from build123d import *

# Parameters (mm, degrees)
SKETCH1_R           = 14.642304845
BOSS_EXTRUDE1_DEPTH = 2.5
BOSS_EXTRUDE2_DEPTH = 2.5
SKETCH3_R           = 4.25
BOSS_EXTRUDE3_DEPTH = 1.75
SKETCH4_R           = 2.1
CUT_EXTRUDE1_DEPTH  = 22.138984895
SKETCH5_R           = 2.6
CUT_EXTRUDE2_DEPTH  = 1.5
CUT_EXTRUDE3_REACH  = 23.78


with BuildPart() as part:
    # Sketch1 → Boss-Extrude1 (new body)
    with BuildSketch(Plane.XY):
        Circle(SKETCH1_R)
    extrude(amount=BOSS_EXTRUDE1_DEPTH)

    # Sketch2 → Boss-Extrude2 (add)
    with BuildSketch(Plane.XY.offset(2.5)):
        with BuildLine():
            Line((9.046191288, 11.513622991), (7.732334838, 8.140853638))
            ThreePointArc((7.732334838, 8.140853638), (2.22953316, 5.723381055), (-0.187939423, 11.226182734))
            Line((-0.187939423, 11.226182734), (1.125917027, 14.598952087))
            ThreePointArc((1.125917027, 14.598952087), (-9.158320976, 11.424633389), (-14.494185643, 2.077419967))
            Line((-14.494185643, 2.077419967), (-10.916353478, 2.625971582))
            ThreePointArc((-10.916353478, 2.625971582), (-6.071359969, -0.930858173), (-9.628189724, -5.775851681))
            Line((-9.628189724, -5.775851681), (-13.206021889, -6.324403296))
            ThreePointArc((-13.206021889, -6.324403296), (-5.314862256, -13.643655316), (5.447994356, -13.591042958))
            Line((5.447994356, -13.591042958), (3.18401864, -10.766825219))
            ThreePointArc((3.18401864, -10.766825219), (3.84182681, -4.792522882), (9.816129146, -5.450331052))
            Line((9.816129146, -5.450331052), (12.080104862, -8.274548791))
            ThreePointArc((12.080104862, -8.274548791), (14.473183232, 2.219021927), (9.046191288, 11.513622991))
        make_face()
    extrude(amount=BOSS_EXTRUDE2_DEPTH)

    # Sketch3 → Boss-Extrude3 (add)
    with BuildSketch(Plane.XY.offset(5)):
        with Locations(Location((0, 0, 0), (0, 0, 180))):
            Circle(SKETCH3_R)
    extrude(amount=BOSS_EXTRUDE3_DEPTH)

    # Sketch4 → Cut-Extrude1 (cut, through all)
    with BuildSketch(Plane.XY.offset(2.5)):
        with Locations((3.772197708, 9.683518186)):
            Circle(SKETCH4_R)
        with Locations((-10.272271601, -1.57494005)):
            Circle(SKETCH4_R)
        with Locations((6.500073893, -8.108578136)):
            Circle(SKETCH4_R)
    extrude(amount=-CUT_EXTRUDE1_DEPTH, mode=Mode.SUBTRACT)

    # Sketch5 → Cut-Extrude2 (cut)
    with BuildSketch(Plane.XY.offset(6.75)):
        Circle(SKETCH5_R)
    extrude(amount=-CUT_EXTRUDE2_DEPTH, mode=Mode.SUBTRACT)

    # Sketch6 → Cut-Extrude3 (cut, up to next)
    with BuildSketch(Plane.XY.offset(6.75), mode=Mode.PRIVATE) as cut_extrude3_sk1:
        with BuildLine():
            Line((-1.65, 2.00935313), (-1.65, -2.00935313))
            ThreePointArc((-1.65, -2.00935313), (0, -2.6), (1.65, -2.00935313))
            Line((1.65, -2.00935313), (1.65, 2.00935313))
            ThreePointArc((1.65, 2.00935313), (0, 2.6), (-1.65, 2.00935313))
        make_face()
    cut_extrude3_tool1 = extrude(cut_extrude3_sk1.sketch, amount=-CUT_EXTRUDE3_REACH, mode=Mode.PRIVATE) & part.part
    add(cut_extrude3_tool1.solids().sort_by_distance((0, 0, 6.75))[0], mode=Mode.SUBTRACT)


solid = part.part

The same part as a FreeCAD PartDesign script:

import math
import FreeCAD as App
import Part
import Sketcher
from FreeCAD import Vector
Q = App.Units.Quantity

doc = App.newDocument("Part")
body = doc.addObject("PartDesign::Body", "Body")

# Sketch on XY plane
sketch1 = body.newObject("Sketcher::SketchObject", "Sketch")
sketch1.AttachmentSupport = (doc.getObject("XY_Plane"), [""])
sketch1.MapMode = "FlatFace"
sketch1.addGeometry(Part.Circle(Vector(0, 0, 0), Vector(0, 0, 1), 14.642305), False)
sketch1.addConstraint(Sketcher.Constraint("Coincident", 0, 3, -1, 1))
sketch1.addConstraint(Sketcher.Constraint("Diameter", 0, Q("29.28461 mm")))
pad1 = body.newObject("PartDesign::Pad", "Pad")
pad1.Profile = sketch1
pad1.Length = 2.5

# Sketch on XY plane
sketch2 = body.newObject("Sketcher::SketchObject", "Sketch001")
sketch2.AttachmentSupport = (doc.getObject("XY_Plane"), [""])
sketch2.MapMode = "FlatFace"
sketch2.AttachmentOffset = App.Placement(Vector(0, 0, 2.5), App.Rotation())
sketch2.addGeometry(Part.LineSegment(Vector(9.046191, 11.513623, 0), Vector(7.732335, 8.140854, 0)), False)
sketch2.addGeometry(Part.ArcOfCircle(Part.Circle(Vector(3.772198, 9.683518, 0), Vector(0, 0, 1), 4.25), math.radians(158.716685), math.radians(338.716685)), False)
sketch2.addGeometry(Part.LineSegment(Vector(-0.187939, 11.226183, 0), Vector(1.125917, 14.598952, 0)), False)
sketch2.addGeometry(Part.ArcOfCircle(Part.Circle(Vector(0, 0, 0), Vector(0, 0, 1), 14.642305), math.radians(85.589899), math.radians(171.843471)), False)
sketch2.addGeometry(Part.LineSegment(Vector(-14.494186, 2.07742, 0), Vector(-10.916353, 2.625972, 0)), False)
sketch2.addGeometry(Part.ArcOfCircle(Part.Circle(Vector(-10.272272, -1.57494, 0), Vector(0, 0, 1), 4.25), math.radians(-81.283315), math.radians(98.716685)), False)
sketch2.addGeometry(Part.LineSegment(Vector(-9.62819, -5.775852, 0), Vector(-13.206022, -6.324403, 0)), False)
sketch2.addGeometry(Part.ArcOfCircle(Part.Circle(Vector(0, 0, 0), Vector(0, 0, 1), 14.642305), math.radians(-154.410101), math.radians(-68.156529)), False)
sketch2.addGeometry(Part.LineSegment(Vector(5.447994, -13.591043, 0), Vector(3.184019, -10.766825, 0)), False)
sketch2.addGeometry(Part.ArcOfCircle(Part.Circle(Vector(6.500074, -8.108578, 0), Vector(0, 0, 1), 4.25), math.radians(38.716685), math.radians(218.716685)), False)
sketch2.addGeometry(Part.LineSegment(Vector(9.816129, -5.450331, 0), Vector(12.080105, -8.274549, 0)), False)
sketch2.addGeometry(Part.ArcOfCircle(Part.Circle(Vector(0, 0, 0), Vector(0, 0, 1), 14.642305), math.radians(-34.410101), math.radians(51.843471)), False)
sketch2.addConstraint(Sketcher.Constraint("Tangent", 0, 2, 1, 2))
sketch2.addConstraint(Sketcher.Constraint("Tangent", 1, 1, 2, 1))
sketch2.addConstraint(Sketcher.Constraint("Coincident", 2, 2, 3, 1))
sketch2.addConstraint(Sketcher.Constraint("Coincident", 3, 2, 4, 1))
sketch2.addConstraint(Sketcher.Constraint("Tangent", 4, 2, 5, 2))
sketch2.addConstraint(Sketcher.Constraint("Tangent", 5, 1, 6, 1))
sketch2.addConstraint(Sketcher.Constraint("Coincident", 6, 2, 7, 1))
sketch2.addConstraint(Sketcher.Constraint("Coincident", 7, 2, 8, 1))
sketch2.addConstraint(Sketcher.Constraint("Tangent", 8, 2, 9, 2))
sketch2.addConstraint(Sketcher.Constraint("Tangent", 9, 1, 10, 1))
sketch2.addConstraint(Sketcher.Constraint("Coincident", 10, 2, 11, 1))
sketch2.addConstraint(Sketcher.Constraint("Coincident", 11, 2, 0, 1))
sketch2.addConstraint(Sketcher.Constraint("Coincident", 3, 3, -1, 1))
sketch2.addConstraint(Sketcher.Constraint("Coincident", 7, 3, -1, 1))
sketch2.addConstraint(Sketcher.Constraint("Coincident", 11, 3, -1, 1))
sketch2.addConstraint(Sketcher.Constraint("Equal", 1, 5))
sketch2.addConstraint(Sketcher.Constraint("Equal", 3, 7))
sketch2.addConstraint(Sketcher.Constraint("Equal", 5, 9))
sketch2.addConstraint(Sketcher.Constraint("Equal", 7, 11))
sketch2.addConstraint(Sketcher.Constraint("Parallel", 0, 2))
sketch2.addConstraint(Sketcher.Constraint("Parallel", 4, 6))
sketch2.addConstraint(Sketcher.Constraint("Parallel", 8, 10))
sketch2.addConstraint(Sketcher.Constraint("Equal", 0, 2))
sketch2.addConstraint(Sketcher.Constraint("Equal", 2, 4))
sketch2.addConstraint(Sketcher.Constraint("Equal", 4, 6))
sketch2.addConstraint(Sketcher.Constraint("Equal", 6, 8))
sketch2.addConstraint(Sketcher.Constraint("Equal", 8, 10))
sketch2.addConstraint(Sketcher.Constraint("Radius", 1, Q("4.25 mm")))
sketch2.addConstraint(Sketcher.Constraint("Radius", 3, Q("14.642305 mm")))
sketch2.addConstraint(Sketcher.Constraint("DistanceY", 0, 2, 2, 2, Q("6.458098 mm")))
sketch2.addConstraint(Sketcher.Constraint("Distance", 0, Q("3.61964 mm")))
sketch2.addConstraint(Sketcher.Constraint("DistanceX", 5, 3, -1, 1, Q("10.272272 mm")))
sketch2.addConstraint(Sketcher.Constraint("DistanceY", 9, 3, -1, 1, Q("8.108578 mm")))
pad2 = body.newObject("PartDesign::Pad", "Pad001")
pad2.Profile = sketch2
pad2.Length = 2.5

# Sketch on XY plane
sketch3 = body.newObject("Sketcher::SketchObject", "Sketch002")
sketch3.AttachmentSupport = (doc.getObject("XY_Plane"), [""])
sketch3.MapMode = "FlatFace"
sketch3.AttachmentOffset = App.Placement(Vector(0, 0, 5), App.Rotation())
sketch3.addGeometry(Part.Circle(Vector(0, 0, 0), Vector(0, 0, 1), 4.25), False)
sketch3.addConstraint(Sketcher.Constraint("Coincident", 0, 3, -1, 1))
sketch3.addConstraint(Sketcher.Constraint("Diameter", 0, Q("8.5 mm")))
pad3 = body.newObject("PartDesign::Pad", "Pad002")
pad3.Profile = sketch3
pad3.Length = 1.75

# Sketch on XY plane
sketch4 = body.newObject("Sketcher::SketchObject", "Sketch003")
sketch4.AttachmentSupport = (doc.getObject("XY_Plane"), [""])
sketch4.MapMode = "FlatFace"
sketch4.AttachmentOffset = App.Placement(Vector(0, 0, 2.5), App.Rotation())
sketch4.addGeometry(Part.Circle(Vector(3.772198, 9.683518, 0), Vector(0, 0, 1), 2.1), False)
sketch4.addGeometry(Part.Circle(Vector(-10.272272, -1.57494, 0), Vector(0, 0, 1), 2.1), False)
sketch4.addGeometry(Part.Circle(Vector(6.500074, -8.108578, 0), Vector(0, 0, 1), 2.1), False)
sketch4.addConstraint(Sketcher.Constraint("Equal", 0, 1))
sketch4.addConstraint(Sketcher.Constraint("Equal", 1, 2))
sketch4.addConstraint(Sketcher.Constraint("Diameter", 0, Q("4.2 mm")))
sketch4.addConstraint(Sketcher.Constraint("DistanceY", -1, 1, 0, 3, Q("9.683518 mm")))
sketch4.addConstraint(Sketcher.Constraint("DistanceX", 1, 3, -1, 1, Q("10.272272 mm")))
sketch4.addConstraint(Sketcher.Constraint("DistanceY", 1, 3, -1, 1, Q("1.57494 mm")))
sketch4.addConstraint(Sketcher.Constraint("DistanceY", 2, 3, -1, 1, Q("8.108578 mm")))
sketch4.addConstraint(Sketcher.Constraint("DistanceX", 1, 3, 0, 3, Q("14.044469 mm")))
sketch4.addConstraint(Sketcher.Constraint("DistanceX", -1, 1, 2, 3, Q("6.500074 mm")))
pocket1 = body.newObject("PartDesign::Pocket", "Pocket")
pocket1.Profile = sketch4
pocket1.Type = "ThroughAll"

# Sketch on XY plane
sketch5 = body.newObject("Sketcher::SketchObject", "Sketch004")
sketch5.AttachmentSupport = (doc.getObject("XY_Plane"), [""])
sketch5.MapMode = "FlatFace"
sketch5.AttachmentOffset = App.Placement(Vector(0, 0, 6.75), App.Rotation())
sketch5.addGeometry(Part.Circle(Vector(0, 0, 0), Vector(0, 0, 1), 2.6), False)
sketch5.addConstraint(Sketcher.Constraint("Coincident", 0, 3, -1, 1))
sketch5.addConstraint(Sketcher.Constraint("Diameter", 0, Q("5.2 mm")))
pocket2 = body.newObject("PartDesign::Pocket", "Pocket001")
pocket2.Profile = sketch5
pocket2.Length = 1.5

# Sketch on XY plane
sketch6 = body.newObject("Sketcher::SketchObject", "Sketch005")
sketch6.AttachmentSupport = (doc.getObject("XY_Plane"), [""])
sketch6.MapMode = "FlatFace"
sketch6.AttachmentOffset = App.Placement(Vector(0, 0, 6.75), App.Rotation())
sketch6.addGeometry(Part.LineSegment(Vector(-1.65, 2.009353, 0), Vector(-1.65, -2.009353, 0)), False)
sketch6.addGeometry(Part.ArcOfCircle(Part.Circle(Vector(0, 0, 0), Vector(0, 0, 1), 2.6), math.radians(-129.391464), math.radians(-50.608536)), False)
sketch6.addGeometry(Part.LineSegment(Vector(1.65, -2.009353, 0), Vector(1.65, 2.009353, 0)), False)
sketch6.addGeometry(Part.ArcOfCircle(Part.Circle(Vector(0, 0, 0), Vector(0, 0, 1), 2.6), math.radians(50.608536), math.radians(129.391464)), False)
sketch6.addConstraint(Sketcher.Constraint("Coincident", 0, 2, 1, 1))
sketch6.addConstraint(Sketcher.Constraint("Coincident", 1, 2, 2, 1))
sketch6.addConstraint(Sketcher.Constraint("Coincident", 2, 2, 3, 1))
sketch6.addConstraint(Sketcher.Constraint("Coincident", 3, 2, 0, 1))
sketch6.addConstraint(Sketcher.Constraint("Vertical", 0))
sketch6.addConstraint(Sketcher.Constraint("Vertical", 2))
sketch6.addConstraint(Sketcher.Constraint("Coincident", 1, 3, -1, 1))
sketch6.addConstraint(Sketcher.Constraint("Coincident", 3, 3, -1, 1))
sketch6.addConstraint(Sketcher.Constraint("Equal", 1, 3))
sketch6.addConstraint(Sketcher.Constraint("Horizontal", 0, 2, 1, 2))
sketch6.addConstraint(Sketcher.Constraint("Radius", 1, Q("2.6 mm")))
sketch6.addConstraint(Sketcher.Constraint("DistanceX", 0, 2, 1, 2, Q("3.3 mm")))
pocket3 = body.newObject("PartDesign::Pocket", "Pocket002")
pocket3.Profile = sketch6
pocket3.Length = 6.75

doc.recompute()
